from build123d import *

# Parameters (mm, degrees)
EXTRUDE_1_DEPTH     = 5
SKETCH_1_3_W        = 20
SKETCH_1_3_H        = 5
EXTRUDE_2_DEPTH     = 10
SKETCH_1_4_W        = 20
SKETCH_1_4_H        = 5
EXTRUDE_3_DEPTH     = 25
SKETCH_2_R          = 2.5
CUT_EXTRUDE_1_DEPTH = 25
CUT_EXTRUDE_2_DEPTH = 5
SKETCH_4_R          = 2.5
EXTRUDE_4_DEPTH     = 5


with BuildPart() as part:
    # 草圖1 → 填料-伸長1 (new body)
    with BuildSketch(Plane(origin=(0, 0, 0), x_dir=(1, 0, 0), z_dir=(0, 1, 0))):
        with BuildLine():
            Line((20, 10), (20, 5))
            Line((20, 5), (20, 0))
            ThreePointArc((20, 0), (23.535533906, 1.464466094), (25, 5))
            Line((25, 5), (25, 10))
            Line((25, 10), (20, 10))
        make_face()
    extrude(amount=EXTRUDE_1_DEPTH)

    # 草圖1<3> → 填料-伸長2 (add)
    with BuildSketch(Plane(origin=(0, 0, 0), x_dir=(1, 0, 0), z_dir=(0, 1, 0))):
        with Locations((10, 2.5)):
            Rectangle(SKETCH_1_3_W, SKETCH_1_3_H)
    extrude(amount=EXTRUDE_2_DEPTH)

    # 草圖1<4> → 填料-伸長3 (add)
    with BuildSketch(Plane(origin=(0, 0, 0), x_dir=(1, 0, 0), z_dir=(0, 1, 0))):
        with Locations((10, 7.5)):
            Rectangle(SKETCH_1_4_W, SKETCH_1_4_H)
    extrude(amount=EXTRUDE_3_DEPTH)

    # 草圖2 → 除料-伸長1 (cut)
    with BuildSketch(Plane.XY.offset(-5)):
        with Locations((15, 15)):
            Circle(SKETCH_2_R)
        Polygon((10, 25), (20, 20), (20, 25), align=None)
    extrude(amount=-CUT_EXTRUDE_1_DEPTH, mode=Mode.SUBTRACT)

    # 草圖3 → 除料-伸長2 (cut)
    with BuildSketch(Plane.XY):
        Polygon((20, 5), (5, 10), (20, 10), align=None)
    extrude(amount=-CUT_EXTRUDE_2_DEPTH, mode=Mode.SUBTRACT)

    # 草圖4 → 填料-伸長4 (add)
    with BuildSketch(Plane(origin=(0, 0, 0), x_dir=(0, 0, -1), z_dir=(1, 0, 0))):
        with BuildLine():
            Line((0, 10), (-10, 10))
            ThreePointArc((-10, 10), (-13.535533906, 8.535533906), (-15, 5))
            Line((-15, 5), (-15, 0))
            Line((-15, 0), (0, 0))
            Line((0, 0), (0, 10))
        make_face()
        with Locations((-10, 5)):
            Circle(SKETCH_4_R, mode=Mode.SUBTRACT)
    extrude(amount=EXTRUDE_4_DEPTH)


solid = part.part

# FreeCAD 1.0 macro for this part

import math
import FreeCAD as App
import Part
import Sketcher

V = App.Vector

doc = App.newDocument("Part")
body = doc.addObject("PartDesign::Body", "Body")

sketch1 = body.newObject("Sketcher::SketchObject", "Sketch")
sketch1.AttachmentSupport = (doc.getObject("XZ_Plane"), [""])
sketch1.MapMode = "FlatFace"
sketch1.addGeometry([
    Part.LineSegment(V(20, -10, 0), V(20, 0, 0)),
    Part.ArcOfCircle(Part.Circle(V(20, -5, 0), V(0, 0, 1), 5), math.radians(0), math.radians(90)),
    Part.LineSegment(V(25, -5, 0), V(25, -10, 0)),
    Part.LineSegment(V(25, -10, 0), V(20, -10, 0)),
], False)
sketch1.addConstraint([
    Sketcher.Constraint("Coincident", 0, 2, 1, 2),
    Sketcher.Constraint("Tangent", 1, 1, 2, 1),
    Sketcher.Constraint("Coincident", 2, 2, 3, 1),
    Sketcher.Constraint("Coincident", 3, 2, 0, 1),
    Sketcher.Constraint("Vertical", 0),
    Sketcher.Constraint("Vertical", 2),
    Sketcher.Constraint("Horizontal", 3),
    Sketcher.Constraint("PointOnObject", 0, 2, -1),
    Sketcher.Constraint("Vertical", 1, 3, 0, 2),
    Sketcher.Constraint("Equal", 3, 2),
    Sketcher.Constraint("Radius", 1, 5.0),
    Sketcher.Constraint("DistanceX", -1, 1, 1, 3, 20.0),
])
pad1 = body.newObject("PartDesign::Pad", "Pad")
pad1.Profile = sketch1
pad1.Length = 5
pad1.Reversed = True

sketch2 = body.newObject("Sketcher::SketchObject", "Sketch001")
sketch2.AttachmentSupport = (doc.getObject("XZ_Plane"), [""])
sketch2.MapMode = "FlatFace"
sketch2.addGeometry([
    Part.LineSegment(V(0, -5, 0), V(0, 0, 0)),
    Part.LineSegment(V(0, 0, 0), V(20, 0, 0)),
    Part.LineSegment(V(20, 0, 0), V(20, -5, 0)),
    Part.LineSegment(V(20, -5, 0), V(0, -5, 0)),
], False)
sketch2.addConstraint([
    Sketcher.Constraint("Coincident", 0, 2, 1, 1),
    Sketcher.Constraint("Coincident", 1, 2, 2, 1),
    Sketcher.Constraint("Coincident", 2, 2, 3, 1),
    Sketcher.Constraint("Coincident", 3, 2, 0, 1),
    Sketcher.Constraint("Vertical", 0),
    Sketcher.Constraint("Horizontal", 1),
    Sketcher.Constraint("Vertical", 2),
    Sketcher.Constraint("Horizontal", 3),
    Sketcher.Constraint("Coincident", 0, 2, -1, 1),
    Sketcher.Constraint("DistanceX", 1, 1, 1, 2, 20.0),
    Sketcher.Constraint("DistanceY", 0, 1, 0, 2, 5.0),
])
pad2 = body.newObject("PartDesign::Pad", "Pad001")
pad2.Profile = sketch2
pad2.Length = 10
pad2.Reversed = True

sketch3 = body.newObject("Sketcher::SketchObject", "Sketch002")
sketch3.AttachmentSupport = (doc.getObject("XZ_Plane"), [""])
sketch3.MapMode = "FlatFace"
sketch3.addGeometry([
    Part.LineSegment(V(0, -10, 0), V(0, -5, 0)),
    Part.LineSegment(V(0, -5, 0), V(20, -5, 0)),
    Part.LineSegment(V(20, -5, 0), V(20, -10, 0)),
    Part.LineSegment(V(20, -10, 0), V(0, -10, 0)),
], False)
sketch3.addConstraint([
    Sketcher.Constraint("Coincident", 0, 2, 1, 1),
    Sketcher.Constraint("Coincident", 1, 2, 2, 1),
    Sketcher.Constraint("Coincident", 2, 2, 3, 1),
    Sketcher.Constraint("Coincident", 3, 2, 0, 1),
    Sketcher.Constraint("Vertical", 0),
    Sketcher.Constraint("Horizontal", 1),
    Sketcher.Constraint("Vertical", 2),
    Sketcher.Constraint("Horizontal", 3),
    Sketcher.Constraint("PointOnObject", 0, 2, -2),
    Sketcher.Constraint("DistanceX", 1, 1, 1, 2, 20.0),
    Sketcher.Constraint("DistanceY", 0, 1, 0, 2, 5.0),
    Sketcher.Constraint("DistanceY", 0, 2, -1, 1, 5.0),
])
pad3 = body.newObject("PartDesign::Pad", "Pad002")
pad3.Profile = sketch3
pad3.Length = 25
pad3.Reversed = True

sketch4 = body.newObject("Sketcher::SketchObject", "Sketch003")
sketch4.AttachmentSupport = (doc.getObject("XY_Plane"), [""])
sketch4.MapMode = "FlatFace"
sketch4.AttachmentOffset = App.Placement(V(0, 0, -5), App.Rotation())
sketch4.addGeometry([
    Part.Circle(V(15, 15, 0), V(0, 0, 1), 2.5),
    Part.LineSegment(V(10, 25, 0), V(20, 20, 0)),
    Part.LineSegment(V(20, 20, 0), V(20, 25, 0)),
    Part.LineSegment(V(20, 25, 0), V(10, 25, 0)),
], False)
sketch4.addConstraint([
    Sketcher.Constraint("Coincident", 1, 2, 2, 1),
    Sketcher.Constraint("Coincident", 2, 2, 3, 1),
    Sketcher.Constraint("Coincident", 3, 2, 1, 1),
    Sketcher.Constraint("Vertical", 2),
    Sketcher.Constraint("Horizontal", 3),
    Sketcher.Constraint("Diameter", 0, 5.0),
    Sketcher.Constraint("DistanceX", 3, 2, 3, 1, 10.0),
    Sketcher.Constraint("DistanceY", 2, 1, 2, 2, 5.0),
    Sketcher.Constraint("DistanceX", -1, 1, 0, 3, 15.0),
    Sketcher.Constraint("DistanceY", -1, 1, 0, 3, 15.0),
    Sketcher.Constraint("DistanceX", -1, 1, 1, 2, 20.0),
    Sketcher.Constraint("DistanceY", -1, 1, 1, 2, 20.0),
])
pocket1 = body.newObject("PartDesign::Pocket", "Pocket")
pocket1.Profile = sketch4
pocket1.Length = 25

sketch5 = body.newObject("Sketcher::SketchObject", "Sketch004")
sketch5.AttachmentSupport = (doc.getObject("XY_Plane"), [""])
sketch5.MapMode = "FlatFace"
sketch5.addGeometry([
    Part.LineSegment(V(5, 10, 0), V(20, 5, 0)),
    Part.LineSegment(V(20, 5, 0), V(20, 10, 0)),
    Part.LineSegment(V(20, 10, 0), V(5, 10, 0)),
], False)
sketch5.addConstraint([
    Sketcher.Constraint("Coincident", 0, 2, 1, 1),
    Sketcher.Constraint("Coincident", 1, 2, 2, 1),
    Sketcher.Constraint("Coincident", 2, 2, 0, 1),
    Sketcher.Constraint("Vertical", 1),
    Sketcher.Constraint("Horizontal", 2),
    Sketcher.Constraint("DistanceX", 2, 2, 2, 1, 15.0),
    Sketcher.Constraint("DistanceY", 1, 1, 1, 2, 5.0),
    Sketcher.Constraint("DistanceX", -1, 1, 0, 2, 20.0),
    Sketcher.Constraint("DistanceY", -1, 1, 0, 2, 5.0),
])
pocket2 = body.newObject("PartDesign::Pocket", "Pocket001")
pocket2.Profile = sketch5
pocket2.Length = 5

sketch6 = body.newObject("Sketcher::SketchObject", "Sketch005")
sketch6.AttachmentSupport = (doc.getObject("YZ_Plane"), [""])
sketch6.MapMode = "FlatFace"
sketch6.addGeometry([
    Part.LineSegment(V(10, 0, 0), V(10, 10, 0)),
    Part.ArcOfCircle(Part.Circle(V(5, 10, 0), V(0, 0, 1), 5), math.radians(0), math.radians(90)),
    Part.LineSegment(V(5, 15, 0), V(0, 15, 0)),
    Part.LineSegment(V(0, 15, 0), V(0, 0, 0)),
    Part.LineSegment(V(0, 0, 0), V(10, 0, 0)),
    Part.Circle(V(5, 10, 0), V(0, 0, 1), 2.5),
], False)
sketch6.addConstraint([
    Sketcher.Constraint("Tangent", 0, 2, 1, 1),
    Sketcher.Constraint("Tangent", 1, 2, 2, 1),
    Sketcher.Constraint("Coincident", 2, 2, 3, 1),
    Sketcher.Constraint("Coincident", 3, 2, 4, 1),
    Sketcher.Constraint("Coincident", 4, 2, 0, 1),
    Sketcher.Constraint("Vertical", 0),
    Sketcher.Constraint("Horizontal", 2),
    Sketcher.Constraint("Vertical", 3),
    Sketcher.Constraint("Horizontal", 4),
    Sketcher.Constraint("Coincident", 3, 2, -1, 1),
    Sketcher.Constraint("Coincident", 5, 3, 1, 3),
    Sketcher.Constraint("Equal", 4, 0),
    Sketcher.Constraint("Diameter", 5, 5.0),
    Sketcher.Constraint("Radius", 1, 5.0),
    Sketcher.Constraint("DistanceX", 2, 2, 2, 1, 5.0),
])
pad4 = body.newObject("PartDesign::Pad", "Pad003")
pad4.Profile = sketch6
pad4.Length = 5

doc.recompute()
